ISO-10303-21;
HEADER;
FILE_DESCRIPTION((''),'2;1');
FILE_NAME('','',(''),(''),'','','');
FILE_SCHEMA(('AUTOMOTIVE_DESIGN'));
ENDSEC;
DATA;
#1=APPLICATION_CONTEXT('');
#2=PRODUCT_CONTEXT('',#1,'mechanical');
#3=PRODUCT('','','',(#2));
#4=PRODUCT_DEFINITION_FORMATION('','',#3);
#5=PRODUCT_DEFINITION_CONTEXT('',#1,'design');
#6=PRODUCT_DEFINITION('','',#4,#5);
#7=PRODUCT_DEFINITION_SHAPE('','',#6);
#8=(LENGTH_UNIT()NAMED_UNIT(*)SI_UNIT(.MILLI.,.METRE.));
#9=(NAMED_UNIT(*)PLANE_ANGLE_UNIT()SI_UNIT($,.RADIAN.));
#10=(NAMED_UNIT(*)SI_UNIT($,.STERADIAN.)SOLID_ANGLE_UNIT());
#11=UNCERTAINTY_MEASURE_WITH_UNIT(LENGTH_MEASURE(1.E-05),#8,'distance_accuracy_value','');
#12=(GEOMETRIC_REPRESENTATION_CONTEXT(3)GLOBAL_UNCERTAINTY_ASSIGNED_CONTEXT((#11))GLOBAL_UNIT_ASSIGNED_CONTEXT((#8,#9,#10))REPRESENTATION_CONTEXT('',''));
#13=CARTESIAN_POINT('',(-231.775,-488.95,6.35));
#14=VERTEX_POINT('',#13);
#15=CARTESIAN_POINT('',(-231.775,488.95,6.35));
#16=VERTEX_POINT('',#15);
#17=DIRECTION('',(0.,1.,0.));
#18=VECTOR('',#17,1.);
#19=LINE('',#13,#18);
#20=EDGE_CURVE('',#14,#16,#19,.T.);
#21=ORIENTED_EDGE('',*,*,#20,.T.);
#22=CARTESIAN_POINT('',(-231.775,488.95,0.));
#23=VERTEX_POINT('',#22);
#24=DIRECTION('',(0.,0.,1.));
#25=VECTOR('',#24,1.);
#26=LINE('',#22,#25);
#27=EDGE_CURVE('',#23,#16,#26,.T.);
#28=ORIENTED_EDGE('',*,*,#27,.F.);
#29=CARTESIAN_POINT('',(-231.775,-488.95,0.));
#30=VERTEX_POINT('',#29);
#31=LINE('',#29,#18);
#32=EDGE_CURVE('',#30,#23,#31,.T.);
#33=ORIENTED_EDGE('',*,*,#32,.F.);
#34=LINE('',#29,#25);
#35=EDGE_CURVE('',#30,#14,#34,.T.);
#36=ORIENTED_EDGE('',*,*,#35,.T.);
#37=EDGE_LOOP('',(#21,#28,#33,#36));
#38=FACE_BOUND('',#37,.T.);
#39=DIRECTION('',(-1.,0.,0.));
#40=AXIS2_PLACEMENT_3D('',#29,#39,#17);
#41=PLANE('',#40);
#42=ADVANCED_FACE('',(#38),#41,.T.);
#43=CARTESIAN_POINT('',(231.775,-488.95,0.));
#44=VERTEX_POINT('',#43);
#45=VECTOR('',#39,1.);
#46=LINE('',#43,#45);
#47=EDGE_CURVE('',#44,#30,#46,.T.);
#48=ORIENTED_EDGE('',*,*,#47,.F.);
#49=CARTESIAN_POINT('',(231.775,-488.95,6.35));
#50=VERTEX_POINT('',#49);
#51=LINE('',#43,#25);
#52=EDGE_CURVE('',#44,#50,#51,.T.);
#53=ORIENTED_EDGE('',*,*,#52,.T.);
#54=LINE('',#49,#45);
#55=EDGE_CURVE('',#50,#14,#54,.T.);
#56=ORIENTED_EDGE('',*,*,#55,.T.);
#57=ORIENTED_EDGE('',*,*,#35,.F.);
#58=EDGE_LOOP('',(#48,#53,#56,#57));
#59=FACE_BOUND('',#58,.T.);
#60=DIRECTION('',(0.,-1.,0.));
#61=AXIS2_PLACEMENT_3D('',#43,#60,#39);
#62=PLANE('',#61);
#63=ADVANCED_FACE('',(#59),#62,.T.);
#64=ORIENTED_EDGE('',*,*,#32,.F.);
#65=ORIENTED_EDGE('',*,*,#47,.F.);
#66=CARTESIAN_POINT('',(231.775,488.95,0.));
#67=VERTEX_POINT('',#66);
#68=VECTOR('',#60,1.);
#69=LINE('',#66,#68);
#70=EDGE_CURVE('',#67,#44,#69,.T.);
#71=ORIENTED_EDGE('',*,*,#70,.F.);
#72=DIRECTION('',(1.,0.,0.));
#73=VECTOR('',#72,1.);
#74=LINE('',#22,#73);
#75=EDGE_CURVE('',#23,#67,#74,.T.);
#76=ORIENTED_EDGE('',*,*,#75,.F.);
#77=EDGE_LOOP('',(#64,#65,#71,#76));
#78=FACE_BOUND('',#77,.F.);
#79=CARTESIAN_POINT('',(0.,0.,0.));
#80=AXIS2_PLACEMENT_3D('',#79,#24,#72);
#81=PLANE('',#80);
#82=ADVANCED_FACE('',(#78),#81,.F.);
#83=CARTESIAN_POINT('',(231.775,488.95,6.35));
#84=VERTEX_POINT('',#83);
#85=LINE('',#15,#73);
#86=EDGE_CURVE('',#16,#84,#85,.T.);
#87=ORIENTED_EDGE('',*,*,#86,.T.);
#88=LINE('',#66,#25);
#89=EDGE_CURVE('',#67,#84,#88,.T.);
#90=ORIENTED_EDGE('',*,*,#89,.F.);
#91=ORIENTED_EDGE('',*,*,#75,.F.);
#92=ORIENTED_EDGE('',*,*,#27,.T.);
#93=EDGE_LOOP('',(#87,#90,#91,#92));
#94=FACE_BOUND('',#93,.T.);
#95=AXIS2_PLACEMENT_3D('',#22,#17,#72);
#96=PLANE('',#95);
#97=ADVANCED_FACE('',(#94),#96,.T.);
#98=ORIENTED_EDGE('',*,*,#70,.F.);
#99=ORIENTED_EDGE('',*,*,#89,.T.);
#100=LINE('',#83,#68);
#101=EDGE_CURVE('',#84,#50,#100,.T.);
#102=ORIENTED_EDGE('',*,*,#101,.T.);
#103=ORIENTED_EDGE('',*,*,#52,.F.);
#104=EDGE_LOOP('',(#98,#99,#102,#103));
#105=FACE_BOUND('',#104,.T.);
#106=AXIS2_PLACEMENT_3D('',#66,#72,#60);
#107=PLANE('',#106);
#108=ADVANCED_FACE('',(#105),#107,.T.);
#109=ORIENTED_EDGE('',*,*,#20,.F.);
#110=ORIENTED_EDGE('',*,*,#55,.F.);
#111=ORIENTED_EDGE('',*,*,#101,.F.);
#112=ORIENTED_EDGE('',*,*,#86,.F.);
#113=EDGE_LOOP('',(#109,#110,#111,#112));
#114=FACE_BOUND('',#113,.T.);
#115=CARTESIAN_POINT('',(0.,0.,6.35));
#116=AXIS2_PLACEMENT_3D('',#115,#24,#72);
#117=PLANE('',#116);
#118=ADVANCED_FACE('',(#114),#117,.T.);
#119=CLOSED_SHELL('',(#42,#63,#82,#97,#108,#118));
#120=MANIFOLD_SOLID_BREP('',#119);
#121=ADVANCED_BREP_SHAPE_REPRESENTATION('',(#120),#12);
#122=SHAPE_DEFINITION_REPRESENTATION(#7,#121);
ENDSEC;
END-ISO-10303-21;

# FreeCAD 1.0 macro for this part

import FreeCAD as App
import Part
import Sketcher
from FreeCAD import Vector
Q = App.Units.Quantity

doc = App.newDocument("Part")
body = doc.addObject("PartDesign::Body", "Body")

sketch1 = body.newObject("Sketcher::SketchObject", "Sketch")
sketch1.AttachmentSupport = (doc.getObject("XY_Plane"), [""])
sketch1.MapMode = "FlatFace"
sketch1.addGeometry([
    Part.LineSegment(Vector(-232, -489, 0), Vector(232, -489, 0)),
    Part.LineSegment(Vector(232, -489, 0), Vector(232, 489, 0)),
    Part.LineSegment(Vector(232, 489, 0), Vector(-232, 489, 0)),
    Part.LineSegment(Vector(-232, 489, 0), Vector(-232, -489, 0)),
], False)
sketch1.addConstraint([
    Sketcher.Constraint("Coincident", 0, 2, 1, 1),
    Sketcher.Constraint("Coincident", 1, 2, 2, 1),
    Sketcher.Constraint("Coincident", 2, 2, 3, 1),
    Sketcher.Constraint("Coincident", 3, 2, 0, 1),
    Sketcher.Constraint("Horizontal", 0),
    Sketcher.Constraint("Vertical", 1),
    Sketcher.Constraint("Horizontal", 2),
    Sketcher.Constraint("Vertical", 3),
    Sketcher.Constraint("Symmetric", 0, 2, 2, 2, -1, 1),
    Sketcher.Constraint("DistanceY", 1, 1, 1, 2, Q("38.5 in")),
    Sketcher.Constraint("DistanceX", 0, 1, 0, 2, Q("18.25 in")),
])
pad1 = body.newObject("PartDesign::Pad", "Pad")
pad1.Profile = sketch1
pad1.Length = Q("0.25 in")

doc.recompute()
